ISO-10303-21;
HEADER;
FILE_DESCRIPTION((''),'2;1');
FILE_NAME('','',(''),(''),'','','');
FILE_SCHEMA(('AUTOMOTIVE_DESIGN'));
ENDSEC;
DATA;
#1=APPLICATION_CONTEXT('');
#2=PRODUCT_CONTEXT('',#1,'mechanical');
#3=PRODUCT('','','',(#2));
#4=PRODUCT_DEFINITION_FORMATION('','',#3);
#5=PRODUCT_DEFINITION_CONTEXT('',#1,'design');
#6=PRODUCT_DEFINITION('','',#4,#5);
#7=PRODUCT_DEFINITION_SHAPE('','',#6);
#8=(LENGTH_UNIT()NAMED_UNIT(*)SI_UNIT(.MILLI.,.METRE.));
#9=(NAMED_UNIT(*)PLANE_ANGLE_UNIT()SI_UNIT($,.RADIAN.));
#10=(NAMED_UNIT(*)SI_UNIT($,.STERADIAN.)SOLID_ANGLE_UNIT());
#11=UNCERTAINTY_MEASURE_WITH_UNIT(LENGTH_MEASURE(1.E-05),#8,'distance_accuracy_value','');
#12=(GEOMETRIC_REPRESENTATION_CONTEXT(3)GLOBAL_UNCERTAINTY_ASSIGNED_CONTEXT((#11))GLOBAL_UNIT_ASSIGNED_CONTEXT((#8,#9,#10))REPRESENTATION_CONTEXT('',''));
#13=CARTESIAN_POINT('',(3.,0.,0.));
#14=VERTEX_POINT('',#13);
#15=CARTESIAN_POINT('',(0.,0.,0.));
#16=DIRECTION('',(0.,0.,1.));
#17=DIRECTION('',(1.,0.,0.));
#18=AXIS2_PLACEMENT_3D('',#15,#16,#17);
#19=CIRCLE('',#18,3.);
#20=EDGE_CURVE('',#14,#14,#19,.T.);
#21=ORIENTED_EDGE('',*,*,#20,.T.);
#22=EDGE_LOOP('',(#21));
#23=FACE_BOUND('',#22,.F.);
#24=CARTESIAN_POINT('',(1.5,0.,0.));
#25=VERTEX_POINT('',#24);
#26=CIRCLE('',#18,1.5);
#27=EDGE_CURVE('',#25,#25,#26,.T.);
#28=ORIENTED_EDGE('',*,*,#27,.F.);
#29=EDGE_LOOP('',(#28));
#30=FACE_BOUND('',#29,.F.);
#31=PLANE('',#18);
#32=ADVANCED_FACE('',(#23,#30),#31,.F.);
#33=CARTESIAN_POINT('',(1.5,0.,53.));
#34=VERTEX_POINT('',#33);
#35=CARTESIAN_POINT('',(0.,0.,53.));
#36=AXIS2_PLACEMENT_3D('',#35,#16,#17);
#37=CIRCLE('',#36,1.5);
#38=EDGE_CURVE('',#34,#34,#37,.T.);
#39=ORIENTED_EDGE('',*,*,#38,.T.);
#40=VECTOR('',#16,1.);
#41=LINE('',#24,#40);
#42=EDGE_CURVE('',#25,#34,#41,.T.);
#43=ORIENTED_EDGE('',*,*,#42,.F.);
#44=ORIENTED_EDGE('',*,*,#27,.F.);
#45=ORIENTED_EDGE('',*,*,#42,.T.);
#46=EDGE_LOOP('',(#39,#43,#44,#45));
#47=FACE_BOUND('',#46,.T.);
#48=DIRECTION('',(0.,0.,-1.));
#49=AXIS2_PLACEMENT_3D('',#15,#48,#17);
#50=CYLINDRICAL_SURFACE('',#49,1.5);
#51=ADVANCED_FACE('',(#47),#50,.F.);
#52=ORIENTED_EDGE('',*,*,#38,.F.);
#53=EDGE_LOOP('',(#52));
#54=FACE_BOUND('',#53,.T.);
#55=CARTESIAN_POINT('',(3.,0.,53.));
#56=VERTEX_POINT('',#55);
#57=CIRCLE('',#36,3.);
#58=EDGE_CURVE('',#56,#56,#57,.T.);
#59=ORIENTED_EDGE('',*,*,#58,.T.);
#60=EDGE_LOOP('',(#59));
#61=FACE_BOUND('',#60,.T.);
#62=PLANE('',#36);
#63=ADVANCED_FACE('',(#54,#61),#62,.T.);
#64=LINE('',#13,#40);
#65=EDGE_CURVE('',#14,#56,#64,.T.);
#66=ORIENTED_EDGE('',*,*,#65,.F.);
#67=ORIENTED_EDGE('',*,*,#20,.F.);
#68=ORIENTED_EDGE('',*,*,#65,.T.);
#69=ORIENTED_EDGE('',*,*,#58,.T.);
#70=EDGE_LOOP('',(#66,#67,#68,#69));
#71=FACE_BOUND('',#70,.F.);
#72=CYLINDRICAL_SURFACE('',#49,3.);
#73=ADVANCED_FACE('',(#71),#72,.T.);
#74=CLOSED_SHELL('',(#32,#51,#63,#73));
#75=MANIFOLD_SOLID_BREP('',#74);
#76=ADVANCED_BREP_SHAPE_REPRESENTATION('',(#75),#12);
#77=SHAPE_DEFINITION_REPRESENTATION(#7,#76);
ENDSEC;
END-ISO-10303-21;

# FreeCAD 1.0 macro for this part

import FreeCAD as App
import Part
import Sketcher
Q = App.Units.Quantity

doc = App.newDocument("Part")
body = doc.addObject("PartDesign::Body", "Body")

# Sketch on XY plane
sketch1 = body.newObject("Sketcher::SketchObject", "Sketch")
sketch1.AttachmentSupport = (doc.getObject("XY_Plane"), [""])
sketch1.MapMode = "FlatFace"
sketch1.addGeometry(Part.Circle(App.Vector(0, 0, 0), App.Vector(0, 0, 1), 3), False)
sketch1.addGeometry(Part.Circle(App.Vector(0, 0, 0), App.Vector(0, 0, 1), 1.5), False)
sketch1.addConstraint(Sketcher.Constraint("Coincident", 0, 3, -1, 1))
sketch1.addConstraint(Sketcher.Constraint("Coincident", 1, 3, -1, 1))
sketch1.addConstraint(Sketcher.Constraint("Diameter", 0, Q("6 mm")))
sketch1.addConstraint(Sketcher.Constraint("Diameter", 1, Q("3 mm")))
pad1 = body.newObject("PartDesign::Pad", "Pad")
pad1.Profile = sketch1
pad1.Length = 53

doc.recompute()
